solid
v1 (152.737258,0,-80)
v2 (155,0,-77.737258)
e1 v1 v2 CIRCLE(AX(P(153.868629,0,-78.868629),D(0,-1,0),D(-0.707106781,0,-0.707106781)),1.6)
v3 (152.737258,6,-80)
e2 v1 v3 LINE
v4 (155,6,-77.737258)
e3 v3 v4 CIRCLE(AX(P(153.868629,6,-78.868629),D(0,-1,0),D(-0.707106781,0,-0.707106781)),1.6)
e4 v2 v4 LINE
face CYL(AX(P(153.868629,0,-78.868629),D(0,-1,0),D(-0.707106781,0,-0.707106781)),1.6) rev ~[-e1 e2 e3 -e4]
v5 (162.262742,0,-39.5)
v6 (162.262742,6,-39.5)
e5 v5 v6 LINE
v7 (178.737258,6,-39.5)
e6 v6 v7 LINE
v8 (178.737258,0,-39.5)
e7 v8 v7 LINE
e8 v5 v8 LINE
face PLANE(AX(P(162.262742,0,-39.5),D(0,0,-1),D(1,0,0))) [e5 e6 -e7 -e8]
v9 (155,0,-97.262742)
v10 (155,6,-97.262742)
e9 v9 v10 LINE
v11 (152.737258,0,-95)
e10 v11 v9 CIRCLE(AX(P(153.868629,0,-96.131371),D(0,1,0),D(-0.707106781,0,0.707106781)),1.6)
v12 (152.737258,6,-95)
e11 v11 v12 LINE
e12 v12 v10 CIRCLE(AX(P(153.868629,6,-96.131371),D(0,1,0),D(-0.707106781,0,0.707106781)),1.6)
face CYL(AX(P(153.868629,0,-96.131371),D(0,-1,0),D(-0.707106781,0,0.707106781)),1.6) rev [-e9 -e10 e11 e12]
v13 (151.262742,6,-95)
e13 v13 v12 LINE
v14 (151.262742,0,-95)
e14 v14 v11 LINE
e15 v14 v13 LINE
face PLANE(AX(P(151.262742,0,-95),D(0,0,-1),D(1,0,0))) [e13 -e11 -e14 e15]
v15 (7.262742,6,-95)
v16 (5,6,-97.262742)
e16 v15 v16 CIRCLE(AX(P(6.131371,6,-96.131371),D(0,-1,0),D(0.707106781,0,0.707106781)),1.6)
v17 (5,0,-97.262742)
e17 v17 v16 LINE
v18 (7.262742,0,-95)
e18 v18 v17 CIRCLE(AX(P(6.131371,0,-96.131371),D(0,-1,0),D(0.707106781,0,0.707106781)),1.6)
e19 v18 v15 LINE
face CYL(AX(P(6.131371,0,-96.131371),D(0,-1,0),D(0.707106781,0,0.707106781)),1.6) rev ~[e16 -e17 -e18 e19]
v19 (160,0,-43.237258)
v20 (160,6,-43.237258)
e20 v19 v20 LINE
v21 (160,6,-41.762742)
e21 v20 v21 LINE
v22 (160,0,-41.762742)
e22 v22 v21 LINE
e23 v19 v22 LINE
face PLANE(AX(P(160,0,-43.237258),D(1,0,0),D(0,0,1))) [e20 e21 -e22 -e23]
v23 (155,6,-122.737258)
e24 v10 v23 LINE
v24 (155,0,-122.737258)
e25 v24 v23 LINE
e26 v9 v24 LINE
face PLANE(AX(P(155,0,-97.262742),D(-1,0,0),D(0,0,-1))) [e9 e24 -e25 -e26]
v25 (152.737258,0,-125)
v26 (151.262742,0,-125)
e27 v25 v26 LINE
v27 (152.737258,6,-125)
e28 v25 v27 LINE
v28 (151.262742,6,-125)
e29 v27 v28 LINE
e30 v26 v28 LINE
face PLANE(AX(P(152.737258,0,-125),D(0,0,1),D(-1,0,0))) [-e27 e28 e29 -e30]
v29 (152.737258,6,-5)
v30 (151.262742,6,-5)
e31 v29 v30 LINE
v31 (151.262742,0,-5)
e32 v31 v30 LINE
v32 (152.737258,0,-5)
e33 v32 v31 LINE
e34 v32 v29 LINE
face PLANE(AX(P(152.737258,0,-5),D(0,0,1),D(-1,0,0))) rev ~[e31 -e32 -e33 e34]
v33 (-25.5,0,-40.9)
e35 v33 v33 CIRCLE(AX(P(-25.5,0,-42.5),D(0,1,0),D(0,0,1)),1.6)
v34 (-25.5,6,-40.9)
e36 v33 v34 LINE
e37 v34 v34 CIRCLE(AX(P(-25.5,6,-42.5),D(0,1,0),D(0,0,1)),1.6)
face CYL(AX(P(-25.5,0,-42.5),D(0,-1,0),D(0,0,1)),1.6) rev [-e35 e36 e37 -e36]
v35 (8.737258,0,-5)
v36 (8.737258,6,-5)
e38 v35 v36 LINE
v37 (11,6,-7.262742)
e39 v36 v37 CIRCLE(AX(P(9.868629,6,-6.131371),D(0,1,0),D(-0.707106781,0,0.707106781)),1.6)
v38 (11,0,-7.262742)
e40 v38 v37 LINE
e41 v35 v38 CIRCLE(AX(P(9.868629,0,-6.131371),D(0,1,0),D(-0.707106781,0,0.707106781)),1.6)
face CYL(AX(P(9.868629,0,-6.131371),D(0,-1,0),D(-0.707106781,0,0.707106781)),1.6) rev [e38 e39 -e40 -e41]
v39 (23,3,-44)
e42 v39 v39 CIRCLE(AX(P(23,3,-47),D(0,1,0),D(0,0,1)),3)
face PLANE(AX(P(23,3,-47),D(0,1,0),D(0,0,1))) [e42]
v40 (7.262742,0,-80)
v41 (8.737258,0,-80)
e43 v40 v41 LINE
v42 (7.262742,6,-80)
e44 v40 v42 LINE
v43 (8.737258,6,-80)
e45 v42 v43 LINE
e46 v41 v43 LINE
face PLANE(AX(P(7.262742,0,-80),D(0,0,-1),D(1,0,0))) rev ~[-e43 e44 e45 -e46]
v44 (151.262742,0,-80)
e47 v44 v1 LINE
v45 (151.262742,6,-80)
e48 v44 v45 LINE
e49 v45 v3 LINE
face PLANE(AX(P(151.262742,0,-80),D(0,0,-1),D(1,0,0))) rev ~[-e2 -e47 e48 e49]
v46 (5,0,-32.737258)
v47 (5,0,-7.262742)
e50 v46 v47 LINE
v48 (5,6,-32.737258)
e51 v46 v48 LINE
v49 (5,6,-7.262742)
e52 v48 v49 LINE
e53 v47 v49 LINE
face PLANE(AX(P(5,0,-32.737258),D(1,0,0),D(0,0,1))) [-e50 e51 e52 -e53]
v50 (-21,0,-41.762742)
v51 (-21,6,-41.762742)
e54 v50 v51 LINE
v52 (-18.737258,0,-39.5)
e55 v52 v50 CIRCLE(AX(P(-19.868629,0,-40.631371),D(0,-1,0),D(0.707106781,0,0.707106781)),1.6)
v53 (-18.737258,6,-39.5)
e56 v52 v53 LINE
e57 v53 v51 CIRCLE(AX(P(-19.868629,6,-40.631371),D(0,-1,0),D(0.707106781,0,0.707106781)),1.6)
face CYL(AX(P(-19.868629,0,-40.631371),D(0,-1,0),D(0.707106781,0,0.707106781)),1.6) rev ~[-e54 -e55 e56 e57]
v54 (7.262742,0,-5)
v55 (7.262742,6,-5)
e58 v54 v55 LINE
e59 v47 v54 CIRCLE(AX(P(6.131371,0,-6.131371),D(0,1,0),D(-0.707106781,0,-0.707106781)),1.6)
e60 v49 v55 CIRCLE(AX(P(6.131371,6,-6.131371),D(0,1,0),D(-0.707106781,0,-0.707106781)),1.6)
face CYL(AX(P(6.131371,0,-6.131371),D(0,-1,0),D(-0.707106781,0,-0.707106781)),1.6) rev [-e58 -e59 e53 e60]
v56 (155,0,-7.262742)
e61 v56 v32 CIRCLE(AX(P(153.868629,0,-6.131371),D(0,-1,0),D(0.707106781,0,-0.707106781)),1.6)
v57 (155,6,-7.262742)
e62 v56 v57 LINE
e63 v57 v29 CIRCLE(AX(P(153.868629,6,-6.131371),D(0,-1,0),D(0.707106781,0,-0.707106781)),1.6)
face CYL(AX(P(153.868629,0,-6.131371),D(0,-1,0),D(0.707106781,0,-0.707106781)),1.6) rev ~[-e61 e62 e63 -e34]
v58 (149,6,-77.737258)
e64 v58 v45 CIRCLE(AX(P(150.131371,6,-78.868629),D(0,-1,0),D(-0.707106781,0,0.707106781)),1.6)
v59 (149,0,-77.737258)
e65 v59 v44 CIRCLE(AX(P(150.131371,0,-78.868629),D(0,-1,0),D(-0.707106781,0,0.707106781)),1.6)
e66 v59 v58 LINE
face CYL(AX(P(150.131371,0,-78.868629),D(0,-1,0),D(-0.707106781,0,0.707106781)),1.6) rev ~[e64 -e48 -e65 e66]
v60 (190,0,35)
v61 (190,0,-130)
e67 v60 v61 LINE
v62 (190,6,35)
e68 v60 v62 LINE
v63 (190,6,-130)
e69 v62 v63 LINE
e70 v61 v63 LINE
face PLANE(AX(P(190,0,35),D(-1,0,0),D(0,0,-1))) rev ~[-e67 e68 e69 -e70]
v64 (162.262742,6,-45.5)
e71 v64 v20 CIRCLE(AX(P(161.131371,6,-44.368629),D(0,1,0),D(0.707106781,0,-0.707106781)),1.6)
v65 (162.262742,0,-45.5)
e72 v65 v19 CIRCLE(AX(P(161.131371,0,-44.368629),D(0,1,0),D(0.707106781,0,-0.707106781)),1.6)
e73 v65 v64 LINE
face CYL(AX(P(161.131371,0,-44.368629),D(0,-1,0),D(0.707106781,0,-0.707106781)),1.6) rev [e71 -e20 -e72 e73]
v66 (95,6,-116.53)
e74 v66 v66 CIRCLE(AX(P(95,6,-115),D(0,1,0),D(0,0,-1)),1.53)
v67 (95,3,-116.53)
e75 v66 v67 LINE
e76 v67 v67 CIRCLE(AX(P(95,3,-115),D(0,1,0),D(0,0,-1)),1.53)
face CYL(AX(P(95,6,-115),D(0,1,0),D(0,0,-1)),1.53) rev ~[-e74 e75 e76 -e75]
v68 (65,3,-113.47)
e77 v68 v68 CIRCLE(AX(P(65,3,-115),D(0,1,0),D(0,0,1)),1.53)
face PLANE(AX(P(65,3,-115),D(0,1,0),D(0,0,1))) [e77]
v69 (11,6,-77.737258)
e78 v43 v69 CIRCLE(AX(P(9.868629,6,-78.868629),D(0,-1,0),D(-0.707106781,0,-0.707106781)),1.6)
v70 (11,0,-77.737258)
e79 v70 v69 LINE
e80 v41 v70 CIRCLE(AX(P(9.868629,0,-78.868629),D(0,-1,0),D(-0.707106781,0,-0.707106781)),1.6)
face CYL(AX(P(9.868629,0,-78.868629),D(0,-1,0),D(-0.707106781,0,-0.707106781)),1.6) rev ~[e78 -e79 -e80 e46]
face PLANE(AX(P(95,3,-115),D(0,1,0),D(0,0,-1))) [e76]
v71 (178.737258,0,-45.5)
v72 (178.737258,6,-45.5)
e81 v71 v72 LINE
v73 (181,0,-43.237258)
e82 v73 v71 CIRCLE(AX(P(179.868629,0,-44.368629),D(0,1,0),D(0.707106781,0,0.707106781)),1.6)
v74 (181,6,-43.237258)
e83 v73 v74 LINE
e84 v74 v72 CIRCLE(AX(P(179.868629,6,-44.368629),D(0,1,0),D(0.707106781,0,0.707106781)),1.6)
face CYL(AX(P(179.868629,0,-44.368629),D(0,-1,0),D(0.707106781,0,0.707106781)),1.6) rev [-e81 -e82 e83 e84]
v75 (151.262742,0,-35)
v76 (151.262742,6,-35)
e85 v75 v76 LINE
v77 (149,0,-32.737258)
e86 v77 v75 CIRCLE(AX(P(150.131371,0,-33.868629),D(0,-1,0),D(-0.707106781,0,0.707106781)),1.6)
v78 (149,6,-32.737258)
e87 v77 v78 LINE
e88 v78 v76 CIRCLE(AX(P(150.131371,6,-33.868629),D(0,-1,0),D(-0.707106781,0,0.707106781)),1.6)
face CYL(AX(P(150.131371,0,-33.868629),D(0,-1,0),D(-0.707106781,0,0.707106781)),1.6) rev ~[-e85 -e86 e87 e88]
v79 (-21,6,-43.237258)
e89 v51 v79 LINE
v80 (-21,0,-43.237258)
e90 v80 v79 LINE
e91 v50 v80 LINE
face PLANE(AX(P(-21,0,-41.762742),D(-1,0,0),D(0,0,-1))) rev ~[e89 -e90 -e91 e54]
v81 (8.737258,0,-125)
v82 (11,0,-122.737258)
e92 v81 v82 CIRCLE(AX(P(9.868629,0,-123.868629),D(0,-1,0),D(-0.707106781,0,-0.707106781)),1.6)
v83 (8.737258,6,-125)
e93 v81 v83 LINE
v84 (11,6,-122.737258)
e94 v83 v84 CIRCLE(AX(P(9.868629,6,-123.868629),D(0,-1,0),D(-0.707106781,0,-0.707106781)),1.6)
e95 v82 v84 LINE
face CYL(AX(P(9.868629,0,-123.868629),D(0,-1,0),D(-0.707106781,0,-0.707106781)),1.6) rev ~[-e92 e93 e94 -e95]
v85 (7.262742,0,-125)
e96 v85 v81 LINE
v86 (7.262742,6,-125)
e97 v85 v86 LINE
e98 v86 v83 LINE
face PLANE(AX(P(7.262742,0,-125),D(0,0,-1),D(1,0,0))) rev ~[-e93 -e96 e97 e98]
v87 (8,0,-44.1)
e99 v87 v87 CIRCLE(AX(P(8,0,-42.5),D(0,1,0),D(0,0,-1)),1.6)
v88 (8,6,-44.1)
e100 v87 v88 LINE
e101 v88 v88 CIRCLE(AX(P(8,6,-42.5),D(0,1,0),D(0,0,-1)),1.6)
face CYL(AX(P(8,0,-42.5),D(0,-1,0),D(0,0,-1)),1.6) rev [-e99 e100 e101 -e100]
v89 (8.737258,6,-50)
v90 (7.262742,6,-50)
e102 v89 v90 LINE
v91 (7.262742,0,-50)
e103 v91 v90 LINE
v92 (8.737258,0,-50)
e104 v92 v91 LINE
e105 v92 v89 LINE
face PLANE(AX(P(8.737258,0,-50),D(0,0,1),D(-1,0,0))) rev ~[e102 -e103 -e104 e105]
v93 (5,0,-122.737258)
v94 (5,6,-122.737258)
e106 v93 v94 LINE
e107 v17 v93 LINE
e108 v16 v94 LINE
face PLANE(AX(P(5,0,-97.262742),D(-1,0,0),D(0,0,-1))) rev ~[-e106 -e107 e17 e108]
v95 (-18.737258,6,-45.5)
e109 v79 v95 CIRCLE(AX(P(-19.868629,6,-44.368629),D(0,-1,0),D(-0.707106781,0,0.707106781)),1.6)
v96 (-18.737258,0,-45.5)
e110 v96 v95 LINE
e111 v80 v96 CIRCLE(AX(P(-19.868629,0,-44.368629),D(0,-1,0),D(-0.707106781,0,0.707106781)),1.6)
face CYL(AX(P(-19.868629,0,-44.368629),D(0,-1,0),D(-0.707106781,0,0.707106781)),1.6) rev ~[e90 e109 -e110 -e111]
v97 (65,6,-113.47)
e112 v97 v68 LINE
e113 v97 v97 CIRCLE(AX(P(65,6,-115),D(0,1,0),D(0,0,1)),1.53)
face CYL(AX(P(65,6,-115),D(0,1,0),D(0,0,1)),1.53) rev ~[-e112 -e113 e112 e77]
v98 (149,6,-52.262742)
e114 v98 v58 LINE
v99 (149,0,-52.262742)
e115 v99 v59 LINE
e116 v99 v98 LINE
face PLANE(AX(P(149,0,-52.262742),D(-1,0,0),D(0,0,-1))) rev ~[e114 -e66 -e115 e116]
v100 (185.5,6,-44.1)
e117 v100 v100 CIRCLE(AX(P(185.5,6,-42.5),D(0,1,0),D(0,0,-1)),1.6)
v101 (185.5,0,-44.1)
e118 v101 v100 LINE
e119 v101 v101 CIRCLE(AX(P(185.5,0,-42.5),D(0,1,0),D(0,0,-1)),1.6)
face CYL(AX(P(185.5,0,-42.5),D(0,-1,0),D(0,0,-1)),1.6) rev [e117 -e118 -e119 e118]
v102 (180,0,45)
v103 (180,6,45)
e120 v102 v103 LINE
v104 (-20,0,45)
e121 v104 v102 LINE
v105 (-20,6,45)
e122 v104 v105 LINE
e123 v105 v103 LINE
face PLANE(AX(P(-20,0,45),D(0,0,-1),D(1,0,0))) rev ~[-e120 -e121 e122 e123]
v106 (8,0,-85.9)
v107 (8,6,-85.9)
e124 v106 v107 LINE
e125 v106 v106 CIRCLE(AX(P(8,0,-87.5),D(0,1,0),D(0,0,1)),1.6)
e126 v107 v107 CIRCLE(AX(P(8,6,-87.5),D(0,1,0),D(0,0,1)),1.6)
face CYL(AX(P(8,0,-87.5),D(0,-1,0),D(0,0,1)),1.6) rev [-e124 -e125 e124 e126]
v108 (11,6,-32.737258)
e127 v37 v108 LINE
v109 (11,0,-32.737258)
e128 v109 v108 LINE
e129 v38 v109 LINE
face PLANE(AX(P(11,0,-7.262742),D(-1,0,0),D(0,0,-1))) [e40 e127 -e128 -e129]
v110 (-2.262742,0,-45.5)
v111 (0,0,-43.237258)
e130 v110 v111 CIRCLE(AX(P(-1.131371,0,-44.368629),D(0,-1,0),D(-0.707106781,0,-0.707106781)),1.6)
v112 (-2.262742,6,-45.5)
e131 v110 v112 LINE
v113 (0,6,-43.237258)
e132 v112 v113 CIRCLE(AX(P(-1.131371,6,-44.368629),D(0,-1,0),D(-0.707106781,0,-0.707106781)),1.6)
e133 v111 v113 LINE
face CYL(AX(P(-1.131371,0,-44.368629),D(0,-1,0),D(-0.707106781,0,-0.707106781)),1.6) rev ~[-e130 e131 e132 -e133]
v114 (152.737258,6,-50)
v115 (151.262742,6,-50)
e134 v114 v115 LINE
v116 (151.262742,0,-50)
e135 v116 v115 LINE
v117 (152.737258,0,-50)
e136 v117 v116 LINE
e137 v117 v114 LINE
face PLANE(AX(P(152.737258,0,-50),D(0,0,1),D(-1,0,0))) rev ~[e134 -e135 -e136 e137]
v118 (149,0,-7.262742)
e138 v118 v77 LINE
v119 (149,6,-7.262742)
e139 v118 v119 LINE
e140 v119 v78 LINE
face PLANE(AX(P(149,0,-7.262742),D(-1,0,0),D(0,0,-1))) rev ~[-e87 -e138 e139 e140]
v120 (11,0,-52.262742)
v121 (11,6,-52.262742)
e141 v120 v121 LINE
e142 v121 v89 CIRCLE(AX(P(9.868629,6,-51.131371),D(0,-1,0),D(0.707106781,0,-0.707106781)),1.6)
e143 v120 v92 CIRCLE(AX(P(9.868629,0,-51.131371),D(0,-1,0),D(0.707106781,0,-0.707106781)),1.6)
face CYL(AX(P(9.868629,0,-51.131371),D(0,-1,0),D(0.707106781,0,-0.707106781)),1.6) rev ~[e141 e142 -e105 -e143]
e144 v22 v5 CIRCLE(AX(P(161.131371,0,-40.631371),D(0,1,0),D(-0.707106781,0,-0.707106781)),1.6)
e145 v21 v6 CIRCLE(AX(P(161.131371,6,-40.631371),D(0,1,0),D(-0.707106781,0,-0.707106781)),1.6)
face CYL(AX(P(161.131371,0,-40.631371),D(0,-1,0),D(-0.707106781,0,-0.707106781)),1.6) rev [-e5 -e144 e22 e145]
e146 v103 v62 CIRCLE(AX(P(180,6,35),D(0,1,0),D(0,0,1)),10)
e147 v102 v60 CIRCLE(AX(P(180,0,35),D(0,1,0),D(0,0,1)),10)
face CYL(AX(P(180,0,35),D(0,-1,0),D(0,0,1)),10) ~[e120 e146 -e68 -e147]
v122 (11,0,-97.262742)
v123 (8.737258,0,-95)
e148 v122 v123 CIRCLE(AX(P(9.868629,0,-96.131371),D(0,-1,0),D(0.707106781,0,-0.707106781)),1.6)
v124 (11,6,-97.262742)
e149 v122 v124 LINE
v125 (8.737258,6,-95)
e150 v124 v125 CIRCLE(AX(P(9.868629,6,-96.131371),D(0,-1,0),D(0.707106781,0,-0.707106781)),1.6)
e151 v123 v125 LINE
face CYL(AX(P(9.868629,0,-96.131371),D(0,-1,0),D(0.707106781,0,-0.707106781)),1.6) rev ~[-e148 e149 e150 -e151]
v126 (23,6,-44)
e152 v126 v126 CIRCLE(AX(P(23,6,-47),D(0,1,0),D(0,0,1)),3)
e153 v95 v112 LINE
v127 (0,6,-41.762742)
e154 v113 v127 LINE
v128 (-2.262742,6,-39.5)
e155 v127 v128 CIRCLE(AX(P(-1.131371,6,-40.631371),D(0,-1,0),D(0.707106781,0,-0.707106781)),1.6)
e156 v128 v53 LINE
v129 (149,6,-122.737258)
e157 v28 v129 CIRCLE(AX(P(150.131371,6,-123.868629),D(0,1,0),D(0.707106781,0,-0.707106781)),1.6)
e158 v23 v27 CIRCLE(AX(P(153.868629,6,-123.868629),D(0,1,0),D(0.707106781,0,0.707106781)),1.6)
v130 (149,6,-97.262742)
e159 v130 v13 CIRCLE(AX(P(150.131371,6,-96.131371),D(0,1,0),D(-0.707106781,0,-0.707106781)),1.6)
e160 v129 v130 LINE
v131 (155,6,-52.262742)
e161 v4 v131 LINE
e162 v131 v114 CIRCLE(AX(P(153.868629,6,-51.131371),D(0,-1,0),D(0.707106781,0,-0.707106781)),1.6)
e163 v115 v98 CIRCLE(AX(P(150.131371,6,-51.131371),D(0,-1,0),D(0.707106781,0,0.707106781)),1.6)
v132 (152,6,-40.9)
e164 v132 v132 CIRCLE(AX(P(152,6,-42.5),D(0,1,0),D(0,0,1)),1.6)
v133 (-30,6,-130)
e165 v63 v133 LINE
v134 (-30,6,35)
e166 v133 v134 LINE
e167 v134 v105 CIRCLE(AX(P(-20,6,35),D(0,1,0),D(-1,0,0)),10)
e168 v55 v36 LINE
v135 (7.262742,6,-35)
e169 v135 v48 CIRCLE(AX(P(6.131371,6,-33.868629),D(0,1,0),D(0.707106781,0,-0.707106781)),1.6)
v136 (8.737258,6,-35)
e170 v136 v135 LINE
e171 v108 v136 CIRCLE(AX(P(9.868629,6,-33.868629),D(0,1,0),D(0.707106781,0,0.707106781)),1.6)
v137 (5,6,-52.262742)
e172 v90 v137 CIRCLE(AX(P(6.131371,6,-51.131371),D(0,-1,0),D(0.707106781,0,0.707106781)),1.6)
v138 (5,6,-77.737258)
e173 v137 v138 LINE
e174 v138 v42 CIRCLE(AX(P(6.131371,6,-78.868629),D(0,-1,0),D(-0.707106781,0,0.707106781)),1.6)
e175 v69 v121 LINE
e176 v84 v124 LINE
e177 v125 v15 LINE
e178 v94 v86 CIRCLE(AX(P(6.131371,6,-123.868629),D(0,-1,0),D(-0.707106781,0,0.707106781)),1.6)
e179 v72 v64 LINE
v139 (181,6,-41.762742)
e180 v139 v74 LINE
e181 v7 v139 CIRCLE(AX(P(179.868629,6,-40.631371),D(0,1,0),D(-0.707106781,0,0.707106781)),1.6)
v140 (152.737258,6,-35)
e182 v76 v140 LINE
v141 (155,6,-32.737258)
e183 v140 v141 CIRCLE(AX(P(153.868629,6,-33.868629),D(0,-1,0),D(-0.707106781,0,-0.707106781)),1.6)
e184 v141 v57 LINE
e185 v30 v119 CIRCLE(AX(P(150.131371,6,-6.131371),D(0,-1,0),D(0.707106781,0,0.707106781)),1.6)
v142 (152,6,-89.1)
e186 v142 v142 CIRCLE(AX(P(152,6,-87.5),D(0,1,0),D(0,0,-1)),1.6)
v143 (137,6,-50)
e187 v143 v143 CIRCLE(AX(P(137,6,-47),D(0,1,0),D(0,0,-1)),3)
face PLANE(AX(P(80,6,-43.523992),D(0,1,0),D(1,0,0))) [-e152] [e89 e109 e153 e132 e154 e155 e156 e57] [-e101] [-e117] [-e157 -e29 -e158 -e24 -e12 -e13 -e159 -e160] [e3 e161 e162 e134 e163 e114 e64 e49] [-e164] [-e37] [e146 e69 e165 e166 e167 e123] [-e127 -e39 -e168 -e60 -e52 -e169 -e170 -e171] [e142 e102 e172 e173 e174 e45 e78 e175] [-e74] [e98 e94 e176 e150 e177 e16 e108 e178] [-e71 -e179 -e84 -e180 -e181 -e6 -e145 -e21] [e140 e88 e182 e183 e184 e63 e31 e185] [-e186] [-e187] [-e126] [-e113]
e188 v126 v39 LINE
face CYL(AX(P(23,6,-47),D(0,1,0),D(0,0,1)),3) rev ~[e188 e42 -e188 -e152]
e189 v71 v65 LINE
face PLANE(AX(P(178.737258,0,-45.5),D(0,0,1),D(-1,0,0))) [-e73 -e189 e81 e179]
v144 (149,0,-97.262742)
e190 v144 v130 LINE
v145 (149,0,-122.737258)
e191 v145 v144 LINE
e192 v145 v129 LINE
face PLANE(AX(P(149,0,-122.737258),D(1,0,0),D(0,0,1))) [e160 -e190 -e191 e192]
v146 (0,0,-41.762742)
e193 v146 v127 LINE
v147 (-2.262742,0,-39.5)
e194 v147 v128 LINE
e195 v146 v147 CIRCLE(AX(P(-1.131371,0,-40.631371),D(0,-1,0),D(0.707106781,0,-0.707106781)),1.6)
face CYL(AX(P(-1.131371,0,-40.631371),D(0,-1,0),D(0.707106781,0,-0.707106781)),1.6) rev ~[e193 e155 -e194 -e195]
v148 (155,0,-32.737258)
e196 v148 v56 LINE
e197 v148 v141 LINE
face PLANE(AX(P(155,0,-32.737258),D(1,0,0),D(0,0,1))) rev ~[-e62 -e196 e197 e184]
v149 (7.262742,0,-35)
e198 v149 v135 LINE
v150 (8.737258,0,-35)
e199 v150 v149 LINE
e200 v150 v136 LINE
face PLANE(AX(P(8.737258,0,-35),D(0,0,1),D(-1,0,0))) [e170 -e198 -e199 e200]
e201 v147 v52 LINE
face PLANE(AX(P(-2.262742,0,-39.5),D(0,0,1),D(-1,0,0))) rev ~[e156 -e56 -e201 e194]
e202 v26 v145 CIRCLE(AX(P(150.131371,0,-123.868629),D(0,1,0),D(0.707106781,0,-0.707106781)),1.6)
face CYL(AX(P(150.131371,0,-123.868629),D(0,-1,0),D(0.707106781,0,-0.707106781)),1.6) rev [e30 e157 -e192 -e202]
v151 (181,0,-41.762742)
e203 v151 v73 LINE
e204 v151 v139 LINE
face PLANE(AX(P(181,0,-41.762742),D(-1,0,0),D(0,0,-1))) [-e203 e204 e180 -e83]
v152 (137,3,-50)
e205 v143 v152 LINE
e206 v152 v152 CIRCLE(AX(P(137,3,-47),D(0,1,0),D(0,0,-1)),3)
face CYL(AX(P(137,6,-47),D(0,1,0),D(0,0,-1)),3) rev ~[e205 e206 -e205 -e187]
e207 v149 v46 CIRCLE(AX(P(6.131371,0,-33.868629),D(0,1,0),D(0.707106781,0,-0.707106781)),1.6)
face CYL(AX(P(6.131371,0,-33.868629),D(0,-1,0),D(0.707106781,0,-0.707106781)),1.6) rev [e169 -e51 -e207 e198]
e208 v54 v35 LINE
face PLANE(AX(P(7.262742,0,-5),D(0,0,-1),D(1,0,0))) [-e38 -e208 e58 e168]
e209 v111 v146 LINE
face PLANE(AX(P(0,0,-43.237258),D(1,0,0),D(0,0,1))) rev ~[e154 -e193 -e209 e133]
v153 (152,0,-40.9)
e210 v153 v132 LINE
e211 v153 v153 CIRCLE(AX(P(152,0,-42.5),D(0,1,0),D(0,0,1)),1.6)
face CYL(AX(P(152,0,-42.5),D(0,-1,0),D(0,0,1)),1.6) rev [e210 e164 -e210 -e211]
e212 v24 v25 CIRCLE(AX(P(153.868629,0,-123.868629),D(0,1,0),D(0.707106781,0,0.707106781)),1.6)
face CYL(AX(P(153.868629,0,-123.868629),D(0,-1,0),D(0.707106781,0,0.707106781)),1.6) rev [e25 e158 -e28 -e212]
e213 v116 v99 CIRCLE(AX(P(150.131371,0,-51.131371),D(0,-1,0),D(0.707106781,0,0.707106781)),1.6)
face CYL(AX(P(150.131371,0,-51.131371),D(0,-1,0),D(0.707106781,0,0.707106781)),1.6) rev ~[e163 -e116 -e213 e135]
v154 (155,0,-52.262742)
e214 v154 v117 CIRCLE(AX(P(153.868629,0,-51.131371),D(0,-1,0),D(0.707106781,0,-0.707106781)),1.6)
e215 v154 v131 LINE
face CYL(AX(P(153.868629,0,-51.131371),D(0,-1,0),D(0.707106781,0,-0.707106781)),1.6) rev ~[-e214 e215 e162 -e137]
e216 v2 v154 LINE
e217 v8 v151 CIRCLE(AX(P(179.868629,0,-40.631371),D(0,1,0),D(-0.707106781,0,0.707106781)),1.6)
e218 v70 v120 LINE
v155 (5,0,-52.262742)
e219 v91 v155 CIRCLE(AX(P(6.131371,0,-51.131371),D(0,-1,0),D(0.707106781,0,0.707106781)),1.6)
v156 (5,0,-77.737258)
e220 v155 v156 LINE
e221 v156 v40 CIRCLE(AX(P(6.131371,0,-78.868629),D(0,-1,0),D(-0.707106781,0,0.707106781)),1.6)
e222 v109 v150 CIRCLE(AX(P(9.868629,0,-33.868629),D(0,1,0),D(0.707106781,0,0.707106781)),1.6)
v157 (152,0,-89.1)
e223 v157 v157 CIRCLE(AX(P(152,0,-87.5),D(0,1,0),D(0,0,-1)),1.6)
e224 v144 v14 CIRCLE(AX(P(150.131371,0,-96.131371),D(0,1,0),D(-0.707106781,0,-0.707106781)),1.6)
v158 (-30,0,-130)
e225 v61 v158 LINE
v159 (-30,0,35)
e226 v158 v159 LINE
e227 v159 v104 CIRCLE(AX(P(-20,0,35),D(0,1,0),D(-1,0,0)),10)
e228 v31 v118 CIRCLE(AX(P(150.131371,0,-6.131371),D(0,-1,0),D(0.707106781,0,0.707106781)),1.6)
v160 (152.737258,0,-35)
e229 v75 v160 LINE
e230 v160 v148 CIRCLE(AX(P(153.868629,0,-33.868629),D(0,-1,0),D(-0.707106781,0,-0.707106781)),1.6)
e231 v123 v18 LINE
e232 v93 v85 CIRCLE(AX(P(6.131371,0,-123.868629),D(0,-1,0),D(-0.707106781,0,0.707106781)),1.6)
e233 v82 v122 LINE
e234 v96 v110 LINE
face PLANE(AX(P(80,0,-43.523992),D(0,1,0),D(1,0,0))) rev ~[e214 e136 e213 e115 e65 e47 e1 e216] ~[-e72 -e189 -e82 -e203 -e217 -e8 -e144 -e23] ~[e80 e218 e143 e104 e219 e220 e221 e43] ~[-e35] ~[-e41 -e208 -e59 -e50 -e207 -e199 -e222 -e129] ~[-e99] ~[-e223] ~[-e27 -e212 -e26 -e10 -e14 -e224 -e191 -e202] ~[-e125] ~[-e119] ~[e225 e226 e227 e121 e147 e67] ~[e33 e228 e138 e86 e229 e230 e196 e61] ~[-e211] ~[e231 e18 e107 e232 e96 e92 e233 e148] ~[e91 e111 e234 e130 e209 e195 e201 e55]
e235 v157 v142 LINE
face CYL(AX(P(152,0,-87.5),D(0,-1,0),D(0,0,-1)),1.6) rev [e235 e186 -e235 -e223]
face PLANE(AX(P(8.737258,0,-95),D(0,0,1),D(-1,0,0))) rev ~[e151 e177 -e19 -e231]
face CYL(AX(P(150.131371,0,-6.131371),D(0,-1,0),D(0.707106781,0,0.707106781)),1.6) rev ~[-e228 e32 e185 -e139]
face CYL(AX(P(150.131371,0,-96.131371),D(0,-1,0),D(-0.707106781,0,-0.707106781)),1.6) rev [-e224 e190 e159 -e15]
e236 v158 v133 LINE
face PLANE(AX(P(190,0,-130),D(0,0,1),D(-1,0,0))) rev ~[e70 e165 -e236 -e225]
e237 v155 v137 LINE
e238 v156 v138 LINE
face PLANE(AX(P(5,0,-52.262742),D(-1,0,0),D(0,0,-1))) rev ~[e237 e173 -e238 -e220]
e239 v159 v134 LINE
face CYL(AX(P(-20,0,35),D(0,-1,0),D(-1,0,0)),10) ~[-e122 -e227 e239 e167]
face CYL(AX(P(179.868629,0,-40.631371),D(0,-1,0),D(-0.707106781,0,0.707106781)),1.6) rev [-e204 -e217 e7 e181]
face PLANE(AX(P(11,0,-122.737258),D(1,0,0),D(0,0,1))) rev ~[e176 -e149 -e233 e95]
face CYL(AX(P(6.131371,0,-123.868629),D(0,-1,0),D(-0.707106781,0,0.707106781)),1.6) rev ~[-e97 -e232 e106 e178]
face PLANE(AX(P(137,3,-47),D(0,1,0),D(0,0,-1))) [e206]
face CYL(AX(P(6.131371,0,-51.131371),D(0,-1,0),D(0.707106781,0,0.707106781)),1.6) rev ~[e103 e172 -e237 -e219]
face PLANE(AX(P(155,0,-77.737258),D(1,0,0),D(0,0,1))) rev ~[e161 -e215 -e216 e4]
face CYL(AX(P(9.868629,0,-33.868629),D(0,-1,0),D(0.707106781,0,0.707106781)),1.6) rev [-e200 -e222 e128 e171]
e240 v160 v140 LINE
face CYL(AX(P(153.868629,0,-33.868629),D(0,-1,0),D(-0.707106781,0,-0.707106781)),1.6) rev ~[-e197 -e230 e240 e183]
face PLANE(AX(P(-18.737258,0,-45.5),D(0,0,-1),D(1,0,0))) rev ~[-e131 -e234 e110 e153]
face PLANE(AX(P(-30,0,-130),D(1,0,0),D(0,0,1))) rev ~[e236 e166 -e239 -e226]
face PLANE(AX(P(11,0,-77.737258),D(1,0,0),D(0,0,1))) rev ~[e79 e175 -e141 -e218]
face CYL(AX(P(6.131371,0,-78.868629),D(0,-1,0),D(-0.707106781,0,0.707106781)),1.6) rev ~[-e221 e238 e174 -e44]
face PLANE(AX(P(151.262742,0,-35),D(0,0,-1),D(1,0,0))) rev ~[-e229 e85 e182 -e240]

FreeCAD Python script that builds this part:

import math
import FreeCAD as App
import Part
import Sketcher

V = App.Vector
Q = App.Units.Quantity

doc = App.newDocument("Part")
body = doc.addObject("PartDesign::Body", "Body")

sketch1 = body.newObject("Sketcher::SketchObject", "Sketch")
sketch1.AttachmentSupport = (doc.getObject("XZ_Plane"), [""])
sketch1.MapMode = "FlatFace"
sketch1.addGeometry([
    Part.LineSegment(V(-20, 45, 0), V(180, 45, 0)),
    Part.ArcOfCircle(Part.Circle(V(180, 35, 0), V(0, 0, 1), 10), math.radians(0), math.radians(90)),
    Part.LineSegment(V(190, 35, 0), V(190, -130, 0)),
    Part.LineSegment(V(190, -130, 0), V(-30, -130, 0)),
    Part.LineSegment(V(-30, -130, 0), V(-30, 35, 0)),
    Part.ArcOfCircle(Part.Circle(V(-20, 35, 0), V(0, 0, 1), 10), math.radians(90), math.radians(180)),
    Part.LineSegment(V(7.3, -35, 0), V(8.7, -35, 0)),
    Part.ArcOfCircle(Part.Circle(V(9.9, -33.9, 0), V(0, 0, 1), 1.6), math.radians(-135), math.radians(45)),
    Part.LineSegment(V(11, -32.7, 0), V(11, -7.3, 0)),
    Part.ArcOfCircle(Part.Circle(V(9.9, -6.1, 0), V(0, 0, 1), 1.6), math.radians(-45), math.radians(135)),
    Part.LineSegment(V(8.7, -5, 0), V(7.3, -5, 0)),
    Part.ArcOfCircle(Part.Circle(V(6.1, -6.1, 0), V(0, 0, 1), 1.6), math.radians(45), math.radians(225)),
    Part.LineSegment(V(5, -7.3, 0), V(5, -32.7, 0)),
    Part.ArcOfCircle(Part.Circle(V(6.1, -33.9, 0), V(0, 0, 1), 1.6), math.radians(135), math.radians(315)),
    Part.Circle(V(-25.5, -42.5, 0), V(0, 0, 1), 1.6),
    Part.ArcOfCircle(Part.Circle(V(-1.1, -40.6, 0), V(0, 0, 1), 1.6), math.radians(-45), math.radians(135)),
    Part.LineSegment(V(-2.3, -39.5, 0), V(-18.7, -39.5, 0)),
    Part.ArcOfCircle(Part.Circle(V(-19.9, -40.6, 0), V(0, 0, 1), 1.6), math.radians(45), math.radians(225)),
    Part.LineSegment(V(-21, -41.8, 0), V(-21, -43.2, 0)),
    Part.ArcOfCircle(Part.Circle(V(-19.9, -44.4, 0), V(0, 0, 1), 1.6), math.radians(135), math.radians(315)),
    Part.LineSegment(V(-18.7, -45.5, 0), V(-2.3, -45.5, 0)),
    Part.ArcOfCircle(Part.Circle(V(-1.1, -44.4, 0), V(0, 0, 1), 1.6), math.radians(-135), math.radians(45)),
    Part.LineSegment(V(0, -43.2, 0), V(0, -41.8, 0)),
    Part.Circle(V(8, -42.5, 0), V(0, 0, 1), 1.6),
    Part.ArcOfCircle(Part.Circle(V(153.9, -6.1, 0), V(0, 0, 1), 1.6), math.radians(-45), math.radians(135)),
    Part.LineSegment(V(152.7, -5, 0), V(151.3, -5, 0)),
    Part.ArcOfCircle(Part.Circle(V(150.1, -6.1, 0), V(0, 0, 1), 1.6), math.radians(45), math.radians(225)),
    Part.LineSegment(V(149, -7.3, 0), V(149, -32.7, 0)),
    Part.ArcOfCircle(Part.Circle(V(150.1, -33.9, 0), V(0, 0, 1), 1.6), math.radians(135), math.radians(315)),
    Part.LineSegment(V(151.3, -35, 0), V(152.7, -35, 0)),
    Part.ArcOfCircle(Part.Circle(V(153.9, -33.9, 0), V(0, 0, 1), 1.6), math.radians(-135), math.radians(45)),
    Part.LineSegment(V(155, -32.7, 0), V(155, -7.3, 0)),
    Part.Circle(V(152, -42.5, 0), V(0, 0, 1), 1.6),
    Part.LineSegment(V(181, -43.2, 0), V(181, -41.8, 0)),
    Part.ArcOfCircle(Part.Circle(V(179.9, -40.6, 0), V(0, 0, 1), 1.6), math.radians(-45), math.radians(135)),
    Part.LineSegment(V(178.7, -39.5, 0), V(162.3, -39.5, 0)),
    Part.ArcOfCircle(Part.Circle(V(161.1, -40.6, 0), V(0, 0, 1), 1.6), math.radians(45), math.radians(225)),
    Part.LineSegment(V(160, -41.8, 0), V(160, -43.2, 0)),
    Part.ArcOfCircle(Part.Circle(V(161.1, -44.4, 0), V(0, 0, 1), 1.6), math.radians(135), math.radians(315)),
    Part.LineSegment(V(162.3, -45.5, 0), V(178.7, -45.5, 0)),
    Part.ArcOfCircle(Part.Circle(V(179.9, -44.4, 0), V(0, 0, 1), 1.6), math.radians(-135), math.radians(45)),
    Part.Circle(V(185.5, -42.5, 0), V(0, 0, 1), 1.6),
    Part.ArcOfCircle(Part.Circle(V(6.1, -78.9, 0), V(0, 0, 1), 1.6), math.radians(135), math.radians(315)),
    Part.LineSegment(V(7.3, -80, 0), V(8.7, -80, 0)),
    Part.ArcOfCircle(Part.Circle(V(9.9, -78.9, 0), V(0, 0, 1), 1.6), math.radians(-135), math.radians(45)),
    Part.LineSegment(V(11, -77.7, 0), V(11, -52.3, 0)),
    Part.ArcOfCircle(Part.Circle(V(9.9, -51.1, 0), V(0, 0, 1), 1.6), math.radians(-45), math.radians(135)),
    Part.LineSegment(V(8.7, -50, 0), V(7.3, -50, 0)),
    Part.ArcOfCircle(Part.Circle(V(6.1, -51.1, 0), V(0, 0, 1), 1.6), math.radians(45), math.radians(225)),
    Part.LineSegment(V(5, -52.3, 0), V(5, -77.7, 0)),
    Part.Circle(V(8, -87.5, 0), V(0, 0, 1), 1.6),
    Part.ArcOfCircle(Part.Circle(V(6.1, -123.9, 0), V(0, 0, 1), 1.6), math.radians(135), math.radians(315)),
    Part.LineSegment(V(7.3, -125, 0), V(8.7, -125, 0)),
    Part.ArcOfCircle(Part.Circle(V(9.9, -123.9, 0), V(0, 0, 1), 1.6), math.radians(-135), math.radians(45)),
    Part.LineSegment(V(11, -122.7, 0), V(11, -97.3, 0)),
    Part.ArcOfCircle(Part.Circle(V(9.9, -96.1, 0), V(0, 0, 1), 1.6), math.radians(-45), math.radians(135)),
    Part.LineSegment(V(8.7, -95, 0), V(7.3, -95, 0)),
    Part.ArcOfCircle(Part.Circle(V(6.1, -96.1, 0), V(0, 0, 1), 1.6), math.radians(45), math.radians(225)),
    Part.LineSegment(V(5, -97.3, 0), V(5, -122.7, 0)),
    Part.ArcOfCircle(Part.Circle(V(153.9, -78.9, 0), V(0, 0, 1), 1.6), math.radians(-135), math.radians(45)),
    Part.LineSegment(V(155, -77.7, 0), V(155, -52.3, 0)),
    Part.ArcOfCircle(Part.Circle(V(153.9, -51.1, 0), V(0, 0, 1), 1.6), math.radians(-45), math.radians(135)),
    Part.LineSegment(V(152.7, -50, 0), V(151.3, -50, 0)),
    Part.ArcOfCircle(Part.Circle(V(150.1, -51.1, 0), V(0, 0, 1), 1.6), math.radians(45), math.radians(225)),
    Part.LineSegment(V(149, -52.3, 0), V(149, -77.7, 0)),
    Part.ArcOfCircle(Part.Circle(V(150.1, -78.9, 0), V(0, 0, 1), 1.6), math.radians(135), math.radians(315)),
    Part.LineSegment(V(151.3, -80, 0), V(152.7, -80, 0)),
    Part.Circle(V(152, -87.5, 0), V(0, 0, 1), 1.6),
    Part.LineSegment(V(152.7, -95, 0), V(151.3, -95, 0)),
    Part.ArcOfCircle(Part.Circle(V(150.1, -96.1, 0), V(0, 0, 1), 1.6), math.radians(45), math.radians(225)),
    Part.LineSegment(V(149, -97.3, 0), V(149, -122.7, 0)),
    Part.ArcOfCircle(Part.Circle(V(150.1, -123.9, 0), V(0, 0, 1), 1.6), math.radians(135), math.radians(315)),
    Part.LineSegment(V(151.3, -125, 0), V(152.7, -125, 0)),
    Part.ArcOfCircle(Part.Circle(V(153.9, -123.9, 0), V(0, 0, 1), 1.6), math.radians(-135), math.radians(45)),
    Part.LineSegment(V(155, -122.7, 0), V(155, -97.3, 0)),
    Part.ArcOfCircle(Part.Circle(V(153.9, -96.1, 0), V(0, 0, 1), 1.6), math.radians(-45), math.radians(135)),
], False)
sketch1.addConstraint([
    Sketcher.Constraint("Tangent", 0, 2, 1, 2),
    Sketcher.Constraint("Tangent", 1, 1, 2, 1),
    Sketcher.Constraint("Coincident", 2, 2, 3, 1),
    Sketcher.Constraint("Coincident", 3, 2, 4, 1),
    Sketcher.Constraint("Tangent", 4, 2, 5, 2),
    Sketcher.Constraint("Tangent", 5, 1, 0, 1),
    Sketcher.Constraint("Coincident", 6, 2, 7, 1),
    Sketcher.Constraint("Coincident", 7, 2, 8, 1),
    Sketcher.Constraint("Coincident", 8, 2, 9, 1),
    Sketcher.Constraint("Coincident", 9, 2, 10, 1),
    Sketcher.Constraint("Coincident", 10, 2, 11, 1),
    Sketcher.Constraint("Coincident", 11, 2, 12, 1),
    Sketcher.Constraint("Coincident", 12, 2, 13, 1),
    Sketcher.Constraint("Coincident", 13, 2, 6, 1),
    Sketcher.Constraint("Coincident", 15, 2, 16, 1),
    Sketcher.Constraint("Coincident", 16, 2, 17, 1),
    Sketcher.Constraint("Coincident", 17, 2, 18, 1),
    Sketcher.Constraint("Coincident", 18, 2, 19, 1),
    Sketcher.Constraint("Coincident", 19, 2, 20, 1),
    Sketcher.Constraint("Coincident", 20, 2, 21, 1),
    Sketcher.Constraint("Coincident", 21, 2, 22, 1),
    Sketcher.Constraint("Coincident", 22, 2, 15, 1),
    Sketcher.Constraint("Coincident", 24, 2, 25, 1),
    Sketcher.Constraint("Coincident", 25, 2, 26, 1),
    Sketcher.Constraint("Coincident", 26, 2, 27, 1),
    Sketcher.Constraint("Coincident", 27, 2, 28, 1),
    Sketcher.Constraint("Coincident", 28, 2, 29, 1),
    Sketcher.Constraint("Coincident", 29, 2, 30, 1),
    Sketcher.Constraint("Coincident", 30, 2, 31, 1),
    Sketcher.Constraint("Coincident", 31, 2, 24, 1),
    Sketcher.Constraint("Coincident", 33, 2, 34, 1),
    Sketcher.Constraint("Coincident", 34, 2, 35, 1),
    Sketcher.Constraint("Coincident", 35, 2, 36, 1),
    Sketcher.Constraint("Coincident", 36, 2, 37, 1),
    Sketcher.Constraint("Coincident", 37, 2, 38, 1),
    Sketcher.Constraint("Coincident", 38, 2, 39, 1),
    Sketcher.Constraint("Coincident", 39, 2, 40, 1),
    Sketcher.Constraint("Coincident", 40, 2, 33, 1),
    Sketcher.Constraint("Coincident", 42, 2, 43, 1),
    Sketcher.Constraint("Coincident", 43, 2, 44, 1),
    Sketcher.Constraint("Coincident", 44, 2, 45, 1),
    Sketcher.Constraint("Coincident", 45, 2, 46, 1),
    Sketcher.Constraint("Coincident", 46, 2, 47, 1),
    Sketcher.Constraint("Coincident", 47, 2, 48, 1),
    Sketcher.Constraint("Coincident", 48, 2, 49, 1),
    Sketcher.Constraint("Coincident", 49, 2, 42, 1),
    Sketcher.Constraint("Coincident", 51, 2, 52, 1),
    Sketcher.Constraint("Coincident", 52, 2, 53, 1),
    Sketcher.Constraint("Coincident", 53, 2, 54, 1),
    Sketcher.Constraint("Coincident", 54, 2, 55, 1),
    Sketcher.Constraint("Coincident", 55, 2, 56, 1),
    Sketcher.Constraint("Coincident", 56, 2, 57, 1),
    Sketcher.Constraint("Coincident", 57, 2, 58, 1),
    Sketcher.Constraint("Coincident", 58, 2, 51, 1),
    Sketcher.Constraint("Coincident", 59, 2, 60, 1),
    Sketcher.Constraint("Coincident", 60, 2, 61, 1),
    Sketcher.Constraint("Coincident", 61, 2, 62, 1),
    Sketcher.Constraint("Coincident", 62, 2, 63, 1),
    Sketcher.Constraint("Coincident", 63, 2, 64, 1),
    Sketcher.Constraint("Coincident", 64, 2, 65, 1),
    Sketcher.Constraint("Coincident", 65, 2, 66, 1),
    Sketcher.Constraint("Coincident", 66, 2, 59, 1),
    Sketcher.Constraint("Coincident", 68, 2, 69, 1),
    Sketcher.Constraint("Coincident", 69, 2, 70, 1),
    Sketcher.Constraint("Coincident", 70, 2, 71, 1),
    Sketcher.Constraint("Coincident", 71, 2, 72, 1),
    Sketcher.Constraint("Coincident", 72, 2, 73, 1),
    Sketcher.Constraint("Coincident", 73, 2, 74, 1),
    Sketcher.Constraint("Coincident", 74, 2, 75, 1),
    Sketcher.Constraint("Coincident", 75, 2, 68, 1),
    Sketcher.Constraint("Horizontal", 0),
    Sketcher.Constraint("Vertical", 2),
    Sketcher.Constraint("Horizontal", 3),
    Sketcher.Constraint("Vertical", 4),
    Sketcher.Constraint("Horizontal", 6),
    Sketcher.Constraint("Vertical", 8),
    Sketcher.Constraint("Horizontal", 10),
    Sketcher.Constraint("Vertical", 12),
    Sketcher.Constraint("Horizontal", 16),
    Sketcher.Constraint("Vertical", 18),
    Sketcher.Constraint("Horizontal", 20),
    Sketcher.Constraint("Vertical", 22),
    Sketcher.Constraint("Horizontal", 25),
    Sketcher.Constraint("Vertical", 27),
    Sketcher.Constraint("Horizontal", 29),
    Sketcher.Constraint("Vertical", 31),
    Sketcher.Constraint("Vertical", 33),
    Sketcher.Constraint("Horizontal", 35),
    Sketcher.Constraint("Vertical", 37),
    Sketcher.Constraint("Horizontal", 39),
    Sketcher.Constraint("Horizontal", 43),
    Sketcher.Constraint("Vertical", 45),
    Sketcher.Constraint("Horizontal", 47),
    Sketcher.Constraint("Vertical", 49),
    Sketcher.Constraint("Horizontal", 52),
    Sketcher.Constraint("Vertical", 54),
    Sketcher.Constraint("Horizontal", 56),
    Sketcher.Constraint("Vertical", 58),
    Sketcher.Constraint("Vertical", 60),
    Sketcher.Constraint("Horizontal", 62),
    Sketcher.Constraint("Vertical", 64),
    Sketcher.Constraint("Horizontal", 66),
    Sketcher.Constraint("Horizontal", 68),
    Sketcher.Constraint("Vertical", 70),
    Sketcher.Constraint("Horizontal", 72),
    Sketcher.Constraint("Vertical", 74),
    Sketcher.Constraint("Equal", 1, 5),
    Sketcher.Constraint("Equal", 7, 9),
    Sketcher.Constraint("Equal", 9, 11),
    Sketcher.Constraint("Equal", 11, 13),
    Sketcher.Constraint("Equal", 13, 14),
    Sketcher.Constraint("Equal", 14, 15),
    Sketcher.Constraint("Equal", 15, 17),
    Sketcher.Constraint("Equal", 17, 19),
    Sketcher.Constraint("Equal", 19, 21),
    Sketcher.Constraint("Equal", 21, 23),
    Sketcher.Constraint("Equal", 23, 24),
    Sketcher.Constraint("Equal", 24, 26),
    Sketcher.Constraint("Equal", 26, 28),
    Sketcher.Constraint("Equal", 28, 30),
    Sketcher.Constraint("Equal", 30, 32),
    Sketcher.Constraint("Equal", 32, 34),
    Sketcher.Constraint("Equal", 34, 36),
    Sketcher.Constraint("Equal", 36, 38),
    Sketcher.Constraint("Equal", 38, 40),
    Sketcher.Constraint("Equal", 40, 41),
    Sketcher.Constraint("Equal", 41, 42),
    Sketcher.Constraint("Equal", 42, 44),
    Sketcher.Constraint("Equal", 44, 46),
    Sketcher.Constraint("Equal", 46, 48),
    Sketcher.Constraint("Equal", 48, 50),
    Sketcher.Constraint("Equal", 50, 51),
    Sketcher.Constraint("Equal", 51, 53),
    Sketcher.Constraint("Equal", 53, 55),
    Sketcher.Constraint("Equal", 55, 57),
    Sketcher.Constraint("Equal", 57, 59),
    Sketcher.Constraint("Equal", 59, 61),
    Sketcher.Constraint("Equal", 61, 63),
    Sketcher.Constraint("Equal", 63, 65),
    Sketcher.Constraint("Equal", 65, 67),
    Sketcher.Constraint("Equal", 67, 69),
    Sketcher.Constraint("Equal", 69, 71),
    Sketcher.Constraint("Equal", 71, 73),
    Sketcher.Constraint("Equal", 73, 75),
    Sketcher.Constraint("PointOnObject", 21, 2, -2),
    Sketcher.Constraint("Horizontal", 9, 3, 11, 3),
    Sketcher.Constraint("Horizontal", 7, 3, 13, 3),
    Sketcher.Constraint("Horizontal", 15, 3, 17, 3),
    Sketcher.Constraint("Horizontal", 19, 3, 21, 3),
    Sketcher.Constraint("Horizontal", 14, 3, 23, 3),
    Sketcher.Constraint("Horizontal", 11, 3, 24, 3),
    Sketcher.Constraint("Horizontal", 24, 3, 26, 3),
    Sketcher.Constraint("Horizontal", 13, 3, 28, 3),
    Sketcher.Constraint("Horizontal", 28, 3, 30, 3),
    Sketcher.Constraint("Horizontal", 23, 3, 32, 3),
    Sketcher.Constraint("Horizontal", 17, 3, 34, 3),
    Sketcher.Constraint("Horizontal", 34, 3, 36, 3),
    Sketcher.Constraint("Horizontal", 21, 3, 38, 3),
    Sketcher.Constraint("Horizontal", 38, 3, 40, 3),
    Sketcher.Constraint("Horizontal", 32, 3, 41, 3),
    Sketcher.Constraint("Horizontal", 42, 3, 44, 3),
    Sketcher.Constraint("Horizontal", 46, 3, 48, 3),
    Sketcher.Constraint("Horizontal", 51, 3, 53, 3),
    Sketcher.Constraint("Horizontal", 55, 3, 57, 3),
    Sketcher.Constraint("Horizontal", 44, 3, 59, 3),
    Sketcher.Constraint("Horizontal", 48, 3, 61, 3),
    Sketcher.Constraint("Horizontal", 61, 3, 63, 3),
    Sketcher.Constraint("Horizontal", 59, 3, 65, 3),
    Sketcher.Constraint("Horizontal", 50, 3, 67, 3),
    Sketcher.Constraint("Horizontal", 57, 3, 69, 3),
    Sketcher.Constraint("Horizontal", 53, 3, 71, 3),
    Sketcher.Constraint("Horizontal", 71, 3, 73, 3),
    Sketcher.Constraint("Horizontal", 69, 3, 75, 3),
    Sketcher.Constraint("Horizontal", 8, 2, 11, 2),
    Sketcher.Constraint("Horizontal", 7, 2, 12, 2),
    Sketcher.Constraint("Horizontal", 18, 2, 21, 2),
    Sketcher.Constraint("Horizontal", 17, 2, 22, 2),
    Sketcher.Constraint("Horizontal", 10, 2, 24, 2),
    Sketcher.Constraint("Horizontal", 11, 2, 26, 2),
    Sketcher.Constraint("Horizontal", 12, 2, 27, 2),
    Sketcher.Constraint("Horizontal", 13, 2, 28, 2),
    Sketcher.Constraint("Horizontal", 27, 2, 30, 2),
    Sketcher.Constraint("Horizontal", 26, 2, 31, 2),
    Sketcher.Constraint("Horizontal", 22, 2, 33, 2),
    Sketcher.Constraint("Horizontal", 16, 2, 34, 2),
    Sketcher.Constraint("Horizontal", 33, 2, 36, 2),
    Sketcher.Constraint("Horizontal", 21, 2, 37, 2),
    Sketcher.Constraint("Horizontal", 20, 2, 38, 2),
    Sketcher.Constraint("Horizontal", 37, 2, 40, 2),
    Sketcher.Constraint("Horizontal", 45, 2, 48, 2),
    Sketcher.Constraint("Horizontal", 44, 2, 49, 2),
    Sketcher.Constraint("Horizontal", 54, 2, 57, 2),
    Sketcher.Constraint("Horizontal", 53, 2, 58, 2),
    Sketcher.Constraint("Horizontal", 49, 2, 59, 2),
    Sketcher.Constraint("Horizontal", 48, 2, 60, 2),
    Sketcher.Constraint("Horizontal", 47, 2, 61, 2),
    Sketcher.Constraint("Horizontal", 60, 2, 63, 2),
    Sketcher.Constraint("Horizontal", 59, 2, 64, 2),
    Sketcher.Constraint("Horizontal", 43, 2, 65, 2),
    Sketcher.Constraint("Horizontal", 56, 2, 68, 2),
    Sketcher.Constraint("Horizontal", 57, 2, 69, 2),
    Sketcher.Constraint("Horizontal", 58, 2, 70, 2),
    Sketcher.Constraint("Horizontal", 52, 2, 71, 2),
    Sketcher.Constraint("Horizontal", 70, 2, 73, 2),
    Sketcher.Constraint("Horizontal", 69, 2, 74, 2),
    Sketcher.Constraint("Vertical", 7, 3, 9, 3),
    Sketcher.Constraint("Vertical", 17, 3, 19, 3),
    Sketcher.Constraint("Vertical", 13, 3, 42, 3),
    Sketcher.Constraint("Vertical", 9, 3, 44, 3),
    Sketcher.Constraint("Vertical", 44, 3, 46, 3),
    Sketcher.Constraint("Vertical", 23, 3, 50, 3),
    Sketcher.Constraint("Vertical", 48, 3, 51, 3),
    Sketcher.Constraint("Vertical", 46, 3, 53, 3),
    Sketcher.Constraint("Vertical", 53, 3, 55, 3),
    Sketcher.Constraint("Vertical", 30, 3, 59, 3),
    Sketcher.Constraint("Vertical", 28, 3, 63, 3),
    Sketcher.Constraint("Vertical", 32, 3, 67, 3),
    Sketcher.Constraint("Vertical", 65, 3, 69, 3),
    Sketcher.Constraint("Vertical", 61, 3, 73, 3),
    Sketcher.Constraint("Vertical", 6, 2, 9, 2),
    Sketcher.Constraint("Vertical", 16, 2, 19, 2),
    Sketcher.Constraint("Vertical", 13, 2, 42, 2),
    Sketcher.Constraint("Vertical", 8, 2, 44, 2),
    Sketcher.Constraint("Vertical", 43, 2, 46, 2),
    Sketcher.Constraint("Vertical", 47, 2, 51, 2),
    Sketcher.Constraint("Vertical", 45, 2, 53, 2),
    Sketcher.Constraint("Vertical", 52, 2, 55, 2),
    Sketcher.Constraint("Equal", 10, 25),
    Sketcher.Constraint("Equal", 20, 35),
    Sketcher.Constraint("Equal", 72, 18),
    Sketcher.Constraint("Equal", 31, 45),
    Sketcher.Constraint("Equal", 49, 54),
    Sketcher.Constraint("Radius", 1, Q("10 mm")),
    Sketcher.Constraint("Diameter", 14, Q("3.2 mm")),
    Sketcher.Constraint("DistanceX", 0, 1, 0, 2, Q("200 mm")),
    Sketcher.Constraint("DistanceY", 2, 2, 2, 1, Q("165 mm")),
    Sketcher.Constraint("DistanceX", -1, 1, 1, 3, Q("180 mm")),
    Sketcher.Constraint("DistanceY", -1, 1, 1, 3, Q("35 mm")),
    Sketcher.Constraint("DistanceX", -1, 1, 23, 3, Q("8 mm")),
    Sketcher.Constraint("DistanceX", -1, 1, 32, 3, Q("152 mm")),
    Sketcher.Constraint("DistanceY", 6, 2, -1, 1, Q("35 mm")),
    Sketcher.Constraint("DistanceX", -1, 1, 7, 2, Q("11 mm")),
    Sketcher.Constraint("DistanceY", 9, 2, -1, 1, Q("5 mm")),
    Sketcher.Constraint("DistanceX", -1, 1, 11, 2, Q("5 mm")),
    Sketcher.Constraint("DistanceX", 17, 2, -1, 1, Q("21 mm")),
    Sketcher.Constraint("DistanceX", -1, 1, 26, 2, Q("149 mm")),
    Sketcher.Constraint("DistanceX", -1, 1, 33, 2, Q("181 mm")),
    Sketcher.Constraint("DistanceY", 42, 2, -1, 1, Q("80 mm")),
    Sketcher.Constraint("DistanceY", 51, 2, -1, 1, Q("125 mm")),
    Sketcher.Constraint("DistanceX", 14, 3, -1, 1, Q("25.5 mm")),
    Sketcher.Constraint("DistanceY", 14, 3, -1, 1, Q("42.5 mm")),
    Sketcher.Constraint("DistanceX", -1, 1, 41, 3, Q("185.5 mm")),
    Sketcher.Constraint("DistanceY", 50, 3, -1, 1, Q("87.5 mm")),
    Sketcher.Constraint("DistanceY", 15, 2, -1, 1, Q("39.5 mm")),
    Sketcher.Constraint("DistanceY", 19, 2, -1, 1, Q("45.5 mm")),
    Sketcher.Constraint("DistanceX", 6, 1, 6, 2, Q("1.474517 mm")),
    Sketcher.Constraint("DistanceX", -1, 1, 7, 3, Q("9.868629 mm")),
    Sketcher.Constraint("DistanceX", 15, 3, -1, 1, Q("1.131371 mm")),
])
pad1 = body.newObject("PartDesign::Pad", "Pad")
pad1.Profile = sketch1
pad1.Length = 6
pad1.Reversed = True

sketch2 = body.newObject("Sketcher::SketchObject", "Sketch001")
sketch2.AttachmentSupport = (doc.getObject("XZ_Plane"), [""])
sketch2.MapMode = "FlatFace"
sketch2.AttachmentOffset = App.Placement(V(0, 0, -6), App.Rotation())
sketch2.addGeometry([
    Part.Circle(V(65, -115, 0), V(0, 0, 1), 1.5),
    Part.Circle(V(23, -47, 0), V(0, 0, 1), 3),
    Part.Circle(V(95, -115, 0), V(0, 0, 1), 1.5),
    Part.Circle(V(137, -47, 0), V(0, 0, 1), 3),
], False)
sketch2.addConstraint([
    Sketcher.Constraint("Equal", 0, 2),
    Sketcher.Constraint("Equal", 1, 3),
    Sketcher.Constraint("Horizontal", 0, 3, 2, 3),
    Sketcher.Constraint("Horizontal", 1, 3, 3, 3),
    Sketcher.Constraint("Diameter", 1, Q("6 mm")),
    Sketcher.Constraint("Diameter", 0, Q("3.06 mm")),
    Sketcher.Constraint("DistanceX", -1, 1, 0, 3, Q("65 mm")),
    Sketcher.Constraint("DistanceY", 0, 3, -1, 1, Q("115 mm")),
    Sketcher.Constraint("DistanceX", -1, 1, 1, 3, Q("23 mm")),
    Sketcher.Constraint("DistanceY", 1, 3, -1, 1, Q("47 mm")),
    Sketcher.Constraint("DistanceX", -1, 1, 2, 3, Q("95 mm")),
    Sketcher.Constraint("DistanceX", -1, 1, 3, 3, Q("137 mm")),
])
pocket1 = body.newObject("PartDesign::Pocket", "Pocket")
pocket1.Profile = sketch2
pocket1.Length = 3
pocket1.Reversed = True

doc.recompute()
